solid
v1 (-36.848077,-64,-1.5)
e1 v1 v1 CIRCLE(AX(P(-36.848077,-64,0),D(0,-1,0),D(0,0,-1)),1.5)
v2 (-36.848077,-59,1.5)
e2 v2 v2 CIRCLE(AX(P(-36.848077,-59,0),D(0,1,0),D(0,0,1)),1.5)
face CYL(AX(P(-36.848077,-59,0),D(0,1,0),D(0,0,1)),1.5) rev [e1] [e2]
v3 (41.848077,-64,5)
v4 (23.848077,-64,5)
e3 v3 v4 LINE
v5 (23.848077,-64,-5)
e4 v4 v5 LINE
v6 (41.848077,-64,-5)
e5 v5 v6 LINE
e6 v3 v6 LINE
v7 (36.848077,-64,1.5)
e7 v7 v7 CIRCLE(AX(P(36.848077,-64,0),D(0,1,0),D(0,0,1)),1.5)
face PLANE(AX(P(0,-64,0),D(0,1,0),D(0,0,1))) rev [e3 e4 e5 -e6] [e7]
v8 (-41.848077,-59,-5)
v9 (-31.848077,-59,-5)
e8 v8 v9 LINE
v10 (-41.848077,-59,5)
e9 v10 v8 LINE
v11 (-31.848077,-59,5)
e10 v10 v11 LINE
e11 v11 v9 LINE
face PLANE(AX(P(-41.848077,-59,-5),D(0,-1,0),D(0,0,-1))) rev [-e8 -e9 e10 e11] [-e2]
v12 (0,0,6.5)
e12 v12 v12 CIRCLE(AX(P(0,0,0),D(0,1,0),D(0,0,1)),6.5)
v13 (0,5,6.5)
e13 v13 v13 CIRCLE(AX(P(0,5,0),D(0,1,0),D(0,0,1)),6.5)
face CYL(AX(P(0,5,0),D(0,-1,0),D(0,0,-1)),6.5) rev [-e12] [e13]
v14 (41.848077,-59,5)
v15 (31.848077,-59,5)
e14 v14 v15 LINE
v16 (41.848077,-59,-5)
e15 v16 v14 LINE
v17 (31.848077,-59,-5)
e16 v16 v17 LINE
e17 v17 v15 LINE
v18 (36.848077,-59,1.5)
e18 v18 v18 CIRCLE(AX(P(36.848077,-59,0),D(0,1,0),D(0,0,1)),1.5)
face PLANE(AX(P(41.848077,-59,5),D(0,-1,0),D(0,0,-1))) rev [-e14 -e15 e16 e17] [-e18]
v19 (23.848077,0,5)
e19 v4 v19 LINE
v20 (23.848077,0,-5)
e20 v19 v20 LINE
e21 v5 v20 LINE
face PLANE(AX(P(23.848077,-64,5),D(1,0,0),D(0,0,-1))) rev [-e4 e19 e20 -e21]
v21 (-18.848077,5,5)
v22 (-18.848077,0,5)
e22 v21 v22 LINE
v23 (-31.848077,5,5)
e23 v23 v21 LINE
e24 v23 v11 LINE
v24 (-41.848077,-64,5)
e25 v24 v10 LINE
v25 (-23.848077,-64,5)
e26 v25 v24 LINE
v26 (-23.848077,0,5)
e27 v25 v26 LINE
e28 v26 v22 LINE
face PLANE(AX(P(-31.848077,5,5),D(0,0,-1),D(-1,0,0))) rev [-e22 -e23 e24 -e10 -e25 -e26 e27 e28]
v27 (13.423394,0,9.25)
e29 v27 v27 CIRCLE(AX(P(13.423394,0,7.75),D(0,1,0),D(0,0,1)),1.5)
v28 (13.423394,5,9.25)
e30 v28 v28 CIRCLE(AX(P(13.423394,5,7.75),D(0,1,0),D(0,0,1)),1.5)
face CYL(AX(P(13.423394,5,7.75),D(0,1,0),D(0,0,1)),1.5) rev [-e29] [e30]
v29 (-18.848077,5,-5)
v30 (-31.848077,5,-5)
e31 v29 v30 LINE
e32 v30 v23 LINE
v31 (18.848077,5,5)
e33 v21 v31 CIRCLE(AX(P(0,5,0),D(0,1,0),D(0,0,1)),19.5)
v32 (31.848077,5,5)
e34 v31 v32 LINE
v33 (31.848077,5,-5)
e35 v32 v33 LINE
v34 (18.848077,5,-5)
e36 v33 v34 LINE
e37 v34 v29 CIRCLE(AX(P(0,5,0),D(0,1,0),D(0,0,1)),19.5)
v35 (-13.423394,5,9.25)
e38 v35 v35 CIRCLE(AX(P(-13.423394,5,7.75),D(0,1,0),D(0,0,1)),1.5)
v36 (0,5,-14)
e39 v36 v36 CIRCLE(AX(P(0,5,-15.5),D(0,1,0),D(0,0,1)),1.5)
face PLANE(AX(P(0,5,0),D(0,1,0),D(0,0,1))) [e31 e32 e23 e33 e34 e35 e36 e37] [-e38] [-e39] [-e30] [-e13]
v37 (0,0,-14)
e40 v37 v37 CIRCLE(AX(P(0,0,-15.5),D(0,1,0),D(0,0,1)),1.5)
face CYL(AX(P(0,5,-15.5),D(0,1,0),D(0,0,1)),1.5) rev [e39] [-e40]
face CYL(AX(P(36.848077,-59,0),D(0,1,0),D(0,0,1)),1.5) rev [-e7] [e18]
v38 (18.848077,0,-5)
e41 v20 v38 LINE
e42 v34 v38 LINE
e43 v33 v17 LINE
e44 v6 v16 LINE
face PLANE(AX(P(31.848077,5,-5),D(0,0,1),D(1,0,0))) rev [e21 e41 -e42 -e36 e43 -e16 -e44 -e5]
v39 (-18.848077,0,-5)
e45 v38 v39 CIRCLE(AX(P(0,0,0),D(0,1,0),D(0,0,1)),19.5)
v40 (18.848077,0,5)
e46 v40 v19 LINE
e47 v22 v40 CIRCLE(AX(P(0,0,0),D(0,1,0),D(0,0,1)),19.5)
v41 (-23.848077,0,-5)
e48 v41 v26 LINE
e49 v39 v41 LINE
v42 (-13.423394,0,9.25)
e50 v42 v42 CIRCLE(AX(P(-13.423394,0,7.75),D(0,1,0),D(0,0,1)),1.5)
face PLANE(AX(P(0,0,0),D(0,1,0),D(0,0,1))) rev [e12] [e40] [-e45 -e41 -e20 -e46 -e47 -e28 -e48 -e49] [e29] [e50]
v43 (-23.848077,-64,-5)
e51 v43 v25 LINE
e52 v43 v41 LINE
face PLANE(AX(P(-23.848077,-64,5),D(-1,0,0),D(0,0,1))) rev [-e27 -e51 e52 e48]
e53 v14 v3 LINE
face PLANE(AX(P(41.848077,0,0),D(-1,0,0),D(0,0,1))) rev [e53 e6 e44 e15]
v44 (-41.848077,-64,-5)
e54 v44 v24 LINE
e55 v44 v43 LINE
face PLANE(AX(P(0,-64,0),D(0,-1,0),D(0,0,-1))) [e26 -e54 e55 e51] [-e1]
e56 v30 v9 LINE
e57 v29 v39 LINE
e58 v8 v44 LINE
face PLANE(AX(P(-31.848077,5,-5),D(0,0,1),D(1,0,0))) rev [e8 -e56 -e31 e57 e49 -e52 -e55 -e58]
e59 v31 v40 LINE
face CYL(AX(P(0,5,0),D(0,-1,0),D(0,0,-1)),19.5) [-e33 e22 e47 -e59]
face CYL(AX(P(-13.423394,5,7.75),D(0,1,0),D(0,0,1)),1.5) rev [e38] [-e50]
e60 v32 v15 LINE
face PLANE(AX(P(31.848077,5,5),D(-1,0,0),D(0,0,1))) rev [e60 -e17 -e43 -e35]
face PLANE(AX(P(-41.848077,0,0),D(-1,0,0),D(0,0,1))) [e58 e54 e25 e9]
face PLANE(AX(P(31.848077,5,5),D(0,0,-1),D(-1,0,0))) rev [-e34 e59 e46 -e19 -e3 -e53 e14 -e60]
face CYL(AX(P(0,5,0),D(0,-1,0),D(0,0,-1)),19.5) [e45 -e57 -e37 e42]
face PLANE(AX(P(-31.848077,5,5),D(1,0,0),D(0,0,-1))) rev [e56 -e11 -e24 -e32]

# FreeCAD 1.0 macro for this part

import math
import FreeCAD as App
import Part
import Sketcher

V = App.Vector


def add_polygon(sketch, points):
    """Adds a closed chain of lines whose ends are joined by coincident constraints."""
    first, n = sketch.GeometryCount, len(points)
    for a, b in zip(points, points[1:] + points[:1]):
        sketch.addGeometry(Part.LineSegment(App.Vector(*a, 0), App.Vector(*b, 0)), False)
    for i in range(n):
        sketch.addConstraint(Sketcher.Constraint("Coincident", first + i, 2, first + (i + 1) % n, 1))

doc = App.newDocument("Part")
params = doc.addObject("Spreadsheet::Sheet", "Params")
for row, (alias, value) in enumerate([
    ("sketch1_diameter", "13 mm"),
    ("sketch1_radius", "19.5 mm"),
    ("sketch1_width", "13 mm"),
    ("sketch1_height", "10 mm"),
    ("pad1_length", "5 mm"),
    ("sketch2_width", "8 mm"),
    ("sketch2_height", "10 mm"),
    ("pad2_length", "64 mm"),
    ("sketch3_width", "5 mm"),
    ("sketch3_height", "10 mm"),
    ("pad3_length", "10 mm"),
    ("sketch4_width", "5 mm"),
    ("sketch4_height", "10 mm"),
    ("pad4_length", "10 mm"),
    ("sketch5_diameter", "3 mm"),
    ("hole_diameter", "3 mm"),
    ("hole_depth", "23 mm"),
    ("sketch6_diameter", "3 mm"),
    ("hole2_diameter", "3 mm"),
], start=1):
    params.set(f"A{row}", alias)
    params.set(f"B{row}", "=" + value)
    params.setAlias(f"B{row}", alias)

body = doc.addObject("PartDesign::Body", "Body")

# Sketch on XZ plane
sketch1 = doc.addObject("Sketcher::SketchObject", "Sketch")
body.addObject(sketch1)
sketch1.AttachmentSupport = (doc.XZ_Plane, [""])
sketch1.MapMode = "FlatFace"
sketch1.addGeometry([
    Part.LineSegment(V(-32, 5, 0), V(-19, 5, 0)),  # 0
    Part.ArcOfCircle(Part.Circle(V(0, 0, 0), V(0, 0, 1), 20), math.radians(15), math.radians(165)),  # 1
    Part.LineSegment(V(19, 5, 0), V(32, 5, 0)),  # 2
    Part.LineSegment(V(32, 5, 0), V(32, -5, 0)),  # 3
    Part.LineSegment(V(32, -5, 0), V(19, -5, 0)),  # 4
    Part.ArcOfCircle(Part.Circle(V(0, 0, 0), V(0, 0, 1), 20), math.radians(-165), math.radians(-15)),  # 5
    Part.LineSegment(V(-19, -5, 0), V(-32, -5, 0)),  # 6
    Part.LineSegment(V(-32, -5, 0), V(-32, 5, 0)),  # 7
    Part.Circle(V(0, 0, 0), V(0, 0, 1), 6),  # 8
], False)
sketch1.addConstraint([
    Sketcher.Constraint("Coincident", 0, 2, 1, 2),
    Sketcher.Constraint("Coincident", 1, 1, 2, 1),
    Sketcher.Constraint("Coincident", 2, 2, 3, 1),
    Sketcher.Constraint("Coincident", 3, 2, 4, 1),
    Sketcher.Constraint("Coincident", 4, 2, 5, 2),
    Sketcher.Constraint("Coincident", 5, 1, 6, 1),
    Sketcher.Constraint("Coincident", 6, 2, 7, 1),
    Sketcher.Constraint("Coincident", 7, 2, 0, 1),
    Sketcher.Constraint("Horizontal", 0),
    Sketcher.Constraint("Horizontal", 2),
    Sketcher.Constraint("Vertical", 3),
    Sketcher.Constraint("Horizontal", 4),
    Sketcher.Constraint("Horizontal", 6),
    Sketcher.Constraint("Vertical", 7),
    Sketcher.Constraint("Coincident", 1, 3, -1, 1),
    Sketcher.Constraint("Coincident", 5, 3, -1, 1),
    Sketcher.Constraint("Coincident", 8, 3, -1, 1),
    Sketcher.Constraint("Equal", 1, 5),
    Sketcher.Constraint("Symmetric", 2, 2, 6, 2, -1, 1),
    Sketcher.Constraint("Horizontal", 0, 2, 1, 1),
    Sketcher.Constraint("Horizontal", 4, 2, 5, 1),
    Sketcher.Constraint("Diameter", 8, 13.0),
    Sketcher.Constraint("Radius", 1, 19.5),
    Sketcher.Constraint("DistanceX", 0, 1, 0, 2, 13.0),
    Sketcher.Constraint("DistanceY", 3, 2, 3, 1, 10.0),
])
sketch1.setExpression("Constraints[21]", "Params.sketch1_diameter")
sketch1.setExpression("Constraints[22]", "Params.sketch1_radius")
sketch1.setExpression("Constraints[23]", "Params.sketch1_width")
sketch1.setExpression("Constraints[24]", "Params.sketch1_height")
pad1 = doc.addObject("PartDesign::Pad", "Pad")
body.addObject(pad1)
pad1.Profile = sketch1
pad1.setExpression("Length", "Params.pad1_length")
pad1.Reversed = True

# Sketch on XZ plane
sketch2 = doc.addObject("Sketcher::SketchObject", "Sketch001")
body.addObject(sketch2)
sketch2.AttachmentSupport = (doc.XZ_Plane, [""])
sketch2.MapMode = "FlatFace"
add_polygon(sketch2, [(-32, 5), (-32, -5), (-24, -5), (-24, 5)])  # lines 0-3
add_polygon(sketch2, [(24, 5), (24, -5), (32, -5), (32, 5)])  # lines 4-7
sketch2.addConstraint([
    Sketcher.Constraint("Vertical", 0),
    Sketcher.Constraint("Horizontal", 1),
    Sketcher.Constraint("Vertical", 2),
    Sketcher.Constraint("Horizontal", 3),
    Sketcher.Constraint("Vertical", 4),
    Sketcher.Constraint("Horizontal", 5),
    Sketcher.Constraint("Vertical", 6),
    Sketcher.Constraint("Horizontal", 7),
    Sketcher.Constraint("Symmetric", 2, 2, 4, 2, -1, 1),
    Sketcher.Constraint("Symmetric", 0, 2, 6, 2, -1, 1),
    Sketcher.Constraint("Horizontal", 1, 2, 4, 2),
    Sketcher.Constraint("DistanceX", 1, 1, 1, 2, 8.0),
    Sketcher.Constraint("DistanceY", 0, 2, 0, 1, 10.0),
    Sketcher.Constraint("DistanceX", 0, 2, -1, 1, 31.848077),
])
sketch2.setExpression("Constraints[19]", "Params.sketch2_width")
sketch2.setExpression("Constraints[20]", "Params.sketch2_height")
pad2 = doc.addObject("PartDesign::Pad", "Pad001")
body.addObject(pad2)
pad2.Profile = sketch2
pad2.setExpression("Length", "Params.pad2_length")

# Sketch on YZ plane
sketch3 = doc.addObject("Sketcher::SketchObject", "Sketch002")
body.addObject(sketch3)
sketch3.AttachmentSupport = (doc.YZ_Plane, [""])
sketch3.MapMode = "FlatFace"
sketch3.AttachmentOffset = App.Placement(V(0, 0, -31.848077), App.Rotation())
add_polygon(sketch3, [(-59, -5), (-64, -5), (-64, 5), (-59, 5)])  # lines 0-3
sketch3.addConstraint([
    Sketcher.Constraint("Horizontal", 0),
    Sketcher.Constraint("Vertical", 1),
    Sketcher.Constraint("Horizontal", 2),
    Sketcher.Constraint("Vertical", 3),
    Sketcher.Constraint("DistanceX", 0, 2, 0, 1, 5.0),
    Sketcher.Constraint("DistanceY", 1, 1, 1, 2, 10.0),
    Sketcher.Constraint("DistanceX", 0, 2, -1, 1, 64.0),
    Sketcher.Constraint("DistanceY", 0, 2, -1, 1, 5.0),
])
sketch3.setExpression("Constraints[8]", "Params.sketch3_width")
sketch3.setExpression("Constraints[9]", "Params.sketch3_height")
pad3 = doc.addObject("PartDesign::Pad", "Pad002")
body.addObject(pad3)
pad3.Profile = sketch3
pad3.setExpression("Length", "Params.pad3_length")
pad3.Reversed = True

# Sketch on YZ plane
sketch4 = doc.addObject("Sketcher::SketchObject", "Sketch003")
body.addObject(sketch4)
sketch4.AttachmentSupport = (doc.YZ_Plane, [""])
sketch4.MapMode = "FlatFace"
sketch4.AttachmentOffset = App.Placement(V(0, 0, 31.848077), App.Rotation())
add_polygon(sketch4, [(-59, 5), (-64, 5), (-64, -5), (-59, -5)])  # lines 0-3
sketch4.addConstraint([
    Sketcher.Constraint("Horizontal", 0),
    Sketcher.Constraint("Vertical", 1),
    Sketcher.Constraint("Horizontal", 2),
    Sketcher.Constraint("Vertical", 3),
    Sketcher.Constraint("DistanceX", 0, 2, 0, 1, 5.0),
    Sketcher.Constraint("DistanceY", 1, 2, 1, 1, 10.0),
    Sketcher.Constraint("DistanceX", 0, 2, -1, 1, 64.0),
    Sketcher.Constraint("DistanceY", -1, 1, 0, 2, 5.0),
])
sketch4.setExpression("Constraints[8]", "Params.sketch4_width")
sketch4.setExpression("Constraints[9]", "Params.sketch4_height")
pad4 = doc.addObject("PartDesign::Pad", "Pad003")
body.addObject(pad4)
pad4.Profile = sketch4
pad4.setExpression("Length", "Params.pad4_length")

# Sketch on XZ plane
sketch5 = doc.addObject("Sketcher::SketchObject", "Sketch004")
body.addObject(sketch5)
sketch5.AttachmentSupport = (doc.XZ_Plane, [""])
sketch5.MapMode = "FlatFace"
sketch5.AttachmentOffset = App.Placement(V(0, 0, 59), App.Rotation())
sketch5.addGeometry([
    Part.Circle(V(36.8, 0, 0), V(0, 0, 1), 1.5),
    Part.Circle(V(-36.8, 0, 0), V(0, 0, 1), 1.5),
], False)
sketch5.addConstraint([
    Sketcher.Constraint("Equal", 0, 1),
    Sketcher.Constraint("Symmetric", 0, 3, 1, 3, -1, 1),
    Sketcher.Constraint("PointOnObject", 0, 3, -1),
    Sketcher.Constraint("Diameter", 0, 3.0),
    Sketcher.Constraint("DistanceX", -1, 1, 0, 3, 36.848077),
])
sketch5.setExpression("Constraints[3]", "Params.sketch5_diameter")
doc.recompute()
hole = doc.addObject("PartDesign::Hole", "Hole")
body.addObject(hole)
hole.Profile = sketch5
hole.ThreadType = "None"
hole.setExpression("Diameter", "Params.hole_diameter")
hole.DepthType = "Dimension"
hole.setExpression("Depth", "Params.hole_depth")
hole.DrillPoint = "Angled"
hole.DrillPointAngle = 118
hole.Reversed = True

# Sketch on XZ plane
sketch6 = doc.addObject("Sketcher::SketchObject", "Sketch005")
body.addObject(sketch6)
sketch6.AttachmentSupport = (doc.XZ_Plane, [""])
sketch6.MapMode = "FlatFace"
sketch6.AttachmentOffset = App.Placement(V(0, 0, -5), App.Rotation())
sketch6.addGeometry([
    Part.Circle(V(0, -15.5, 0), V(0, 0, 1), 1.5),
    Part.Circle(V(13.4, 7.8, 0), V(0, 0, 1), 1.5),
    Part.Circle(V(-13.4, 7.8, 0), V(0, 0, 1), 1.5),
], False)
sketch6.addConstraint([
    Sketcher.Constraint("Equal", 0, 1),
    Sketcher.Constraint("Equal", 1, 2),
    Sketcher.Constraint("Symmetric", 1, 3, 2, 3, -2),
    Sketcher.Constraint("PointOnObject", 0, 3, -2),
    Sketcher.Constraint("Diameter", 0, 3.0),
    Sketcher.Constraint("DistanceY", 0, 3, -1, 1, 15.5),
    Sketcher.Constraint("DistanceY", -1, 1, 1, 3, 7.75),
    Sketcher.Constraint("DistanceX", -1, 1, 1, 3, 13.423394),
])
sketch6.setExpression("Constraints[4]", "Params.sketch6_diameter")
doc.recompute()
hole2 = doc.addObject("PartDesign::Hole", "Hole001")
body.addObject(hole2)
hole2.Profile = sketch6
hole2.ThreadType = "None"
hole2.setExpression("Diameter", "Params.hole2_diameter")
hole2.DepthType = "ThroughAll"
hole2.Reversed = True

doc.recompute()
